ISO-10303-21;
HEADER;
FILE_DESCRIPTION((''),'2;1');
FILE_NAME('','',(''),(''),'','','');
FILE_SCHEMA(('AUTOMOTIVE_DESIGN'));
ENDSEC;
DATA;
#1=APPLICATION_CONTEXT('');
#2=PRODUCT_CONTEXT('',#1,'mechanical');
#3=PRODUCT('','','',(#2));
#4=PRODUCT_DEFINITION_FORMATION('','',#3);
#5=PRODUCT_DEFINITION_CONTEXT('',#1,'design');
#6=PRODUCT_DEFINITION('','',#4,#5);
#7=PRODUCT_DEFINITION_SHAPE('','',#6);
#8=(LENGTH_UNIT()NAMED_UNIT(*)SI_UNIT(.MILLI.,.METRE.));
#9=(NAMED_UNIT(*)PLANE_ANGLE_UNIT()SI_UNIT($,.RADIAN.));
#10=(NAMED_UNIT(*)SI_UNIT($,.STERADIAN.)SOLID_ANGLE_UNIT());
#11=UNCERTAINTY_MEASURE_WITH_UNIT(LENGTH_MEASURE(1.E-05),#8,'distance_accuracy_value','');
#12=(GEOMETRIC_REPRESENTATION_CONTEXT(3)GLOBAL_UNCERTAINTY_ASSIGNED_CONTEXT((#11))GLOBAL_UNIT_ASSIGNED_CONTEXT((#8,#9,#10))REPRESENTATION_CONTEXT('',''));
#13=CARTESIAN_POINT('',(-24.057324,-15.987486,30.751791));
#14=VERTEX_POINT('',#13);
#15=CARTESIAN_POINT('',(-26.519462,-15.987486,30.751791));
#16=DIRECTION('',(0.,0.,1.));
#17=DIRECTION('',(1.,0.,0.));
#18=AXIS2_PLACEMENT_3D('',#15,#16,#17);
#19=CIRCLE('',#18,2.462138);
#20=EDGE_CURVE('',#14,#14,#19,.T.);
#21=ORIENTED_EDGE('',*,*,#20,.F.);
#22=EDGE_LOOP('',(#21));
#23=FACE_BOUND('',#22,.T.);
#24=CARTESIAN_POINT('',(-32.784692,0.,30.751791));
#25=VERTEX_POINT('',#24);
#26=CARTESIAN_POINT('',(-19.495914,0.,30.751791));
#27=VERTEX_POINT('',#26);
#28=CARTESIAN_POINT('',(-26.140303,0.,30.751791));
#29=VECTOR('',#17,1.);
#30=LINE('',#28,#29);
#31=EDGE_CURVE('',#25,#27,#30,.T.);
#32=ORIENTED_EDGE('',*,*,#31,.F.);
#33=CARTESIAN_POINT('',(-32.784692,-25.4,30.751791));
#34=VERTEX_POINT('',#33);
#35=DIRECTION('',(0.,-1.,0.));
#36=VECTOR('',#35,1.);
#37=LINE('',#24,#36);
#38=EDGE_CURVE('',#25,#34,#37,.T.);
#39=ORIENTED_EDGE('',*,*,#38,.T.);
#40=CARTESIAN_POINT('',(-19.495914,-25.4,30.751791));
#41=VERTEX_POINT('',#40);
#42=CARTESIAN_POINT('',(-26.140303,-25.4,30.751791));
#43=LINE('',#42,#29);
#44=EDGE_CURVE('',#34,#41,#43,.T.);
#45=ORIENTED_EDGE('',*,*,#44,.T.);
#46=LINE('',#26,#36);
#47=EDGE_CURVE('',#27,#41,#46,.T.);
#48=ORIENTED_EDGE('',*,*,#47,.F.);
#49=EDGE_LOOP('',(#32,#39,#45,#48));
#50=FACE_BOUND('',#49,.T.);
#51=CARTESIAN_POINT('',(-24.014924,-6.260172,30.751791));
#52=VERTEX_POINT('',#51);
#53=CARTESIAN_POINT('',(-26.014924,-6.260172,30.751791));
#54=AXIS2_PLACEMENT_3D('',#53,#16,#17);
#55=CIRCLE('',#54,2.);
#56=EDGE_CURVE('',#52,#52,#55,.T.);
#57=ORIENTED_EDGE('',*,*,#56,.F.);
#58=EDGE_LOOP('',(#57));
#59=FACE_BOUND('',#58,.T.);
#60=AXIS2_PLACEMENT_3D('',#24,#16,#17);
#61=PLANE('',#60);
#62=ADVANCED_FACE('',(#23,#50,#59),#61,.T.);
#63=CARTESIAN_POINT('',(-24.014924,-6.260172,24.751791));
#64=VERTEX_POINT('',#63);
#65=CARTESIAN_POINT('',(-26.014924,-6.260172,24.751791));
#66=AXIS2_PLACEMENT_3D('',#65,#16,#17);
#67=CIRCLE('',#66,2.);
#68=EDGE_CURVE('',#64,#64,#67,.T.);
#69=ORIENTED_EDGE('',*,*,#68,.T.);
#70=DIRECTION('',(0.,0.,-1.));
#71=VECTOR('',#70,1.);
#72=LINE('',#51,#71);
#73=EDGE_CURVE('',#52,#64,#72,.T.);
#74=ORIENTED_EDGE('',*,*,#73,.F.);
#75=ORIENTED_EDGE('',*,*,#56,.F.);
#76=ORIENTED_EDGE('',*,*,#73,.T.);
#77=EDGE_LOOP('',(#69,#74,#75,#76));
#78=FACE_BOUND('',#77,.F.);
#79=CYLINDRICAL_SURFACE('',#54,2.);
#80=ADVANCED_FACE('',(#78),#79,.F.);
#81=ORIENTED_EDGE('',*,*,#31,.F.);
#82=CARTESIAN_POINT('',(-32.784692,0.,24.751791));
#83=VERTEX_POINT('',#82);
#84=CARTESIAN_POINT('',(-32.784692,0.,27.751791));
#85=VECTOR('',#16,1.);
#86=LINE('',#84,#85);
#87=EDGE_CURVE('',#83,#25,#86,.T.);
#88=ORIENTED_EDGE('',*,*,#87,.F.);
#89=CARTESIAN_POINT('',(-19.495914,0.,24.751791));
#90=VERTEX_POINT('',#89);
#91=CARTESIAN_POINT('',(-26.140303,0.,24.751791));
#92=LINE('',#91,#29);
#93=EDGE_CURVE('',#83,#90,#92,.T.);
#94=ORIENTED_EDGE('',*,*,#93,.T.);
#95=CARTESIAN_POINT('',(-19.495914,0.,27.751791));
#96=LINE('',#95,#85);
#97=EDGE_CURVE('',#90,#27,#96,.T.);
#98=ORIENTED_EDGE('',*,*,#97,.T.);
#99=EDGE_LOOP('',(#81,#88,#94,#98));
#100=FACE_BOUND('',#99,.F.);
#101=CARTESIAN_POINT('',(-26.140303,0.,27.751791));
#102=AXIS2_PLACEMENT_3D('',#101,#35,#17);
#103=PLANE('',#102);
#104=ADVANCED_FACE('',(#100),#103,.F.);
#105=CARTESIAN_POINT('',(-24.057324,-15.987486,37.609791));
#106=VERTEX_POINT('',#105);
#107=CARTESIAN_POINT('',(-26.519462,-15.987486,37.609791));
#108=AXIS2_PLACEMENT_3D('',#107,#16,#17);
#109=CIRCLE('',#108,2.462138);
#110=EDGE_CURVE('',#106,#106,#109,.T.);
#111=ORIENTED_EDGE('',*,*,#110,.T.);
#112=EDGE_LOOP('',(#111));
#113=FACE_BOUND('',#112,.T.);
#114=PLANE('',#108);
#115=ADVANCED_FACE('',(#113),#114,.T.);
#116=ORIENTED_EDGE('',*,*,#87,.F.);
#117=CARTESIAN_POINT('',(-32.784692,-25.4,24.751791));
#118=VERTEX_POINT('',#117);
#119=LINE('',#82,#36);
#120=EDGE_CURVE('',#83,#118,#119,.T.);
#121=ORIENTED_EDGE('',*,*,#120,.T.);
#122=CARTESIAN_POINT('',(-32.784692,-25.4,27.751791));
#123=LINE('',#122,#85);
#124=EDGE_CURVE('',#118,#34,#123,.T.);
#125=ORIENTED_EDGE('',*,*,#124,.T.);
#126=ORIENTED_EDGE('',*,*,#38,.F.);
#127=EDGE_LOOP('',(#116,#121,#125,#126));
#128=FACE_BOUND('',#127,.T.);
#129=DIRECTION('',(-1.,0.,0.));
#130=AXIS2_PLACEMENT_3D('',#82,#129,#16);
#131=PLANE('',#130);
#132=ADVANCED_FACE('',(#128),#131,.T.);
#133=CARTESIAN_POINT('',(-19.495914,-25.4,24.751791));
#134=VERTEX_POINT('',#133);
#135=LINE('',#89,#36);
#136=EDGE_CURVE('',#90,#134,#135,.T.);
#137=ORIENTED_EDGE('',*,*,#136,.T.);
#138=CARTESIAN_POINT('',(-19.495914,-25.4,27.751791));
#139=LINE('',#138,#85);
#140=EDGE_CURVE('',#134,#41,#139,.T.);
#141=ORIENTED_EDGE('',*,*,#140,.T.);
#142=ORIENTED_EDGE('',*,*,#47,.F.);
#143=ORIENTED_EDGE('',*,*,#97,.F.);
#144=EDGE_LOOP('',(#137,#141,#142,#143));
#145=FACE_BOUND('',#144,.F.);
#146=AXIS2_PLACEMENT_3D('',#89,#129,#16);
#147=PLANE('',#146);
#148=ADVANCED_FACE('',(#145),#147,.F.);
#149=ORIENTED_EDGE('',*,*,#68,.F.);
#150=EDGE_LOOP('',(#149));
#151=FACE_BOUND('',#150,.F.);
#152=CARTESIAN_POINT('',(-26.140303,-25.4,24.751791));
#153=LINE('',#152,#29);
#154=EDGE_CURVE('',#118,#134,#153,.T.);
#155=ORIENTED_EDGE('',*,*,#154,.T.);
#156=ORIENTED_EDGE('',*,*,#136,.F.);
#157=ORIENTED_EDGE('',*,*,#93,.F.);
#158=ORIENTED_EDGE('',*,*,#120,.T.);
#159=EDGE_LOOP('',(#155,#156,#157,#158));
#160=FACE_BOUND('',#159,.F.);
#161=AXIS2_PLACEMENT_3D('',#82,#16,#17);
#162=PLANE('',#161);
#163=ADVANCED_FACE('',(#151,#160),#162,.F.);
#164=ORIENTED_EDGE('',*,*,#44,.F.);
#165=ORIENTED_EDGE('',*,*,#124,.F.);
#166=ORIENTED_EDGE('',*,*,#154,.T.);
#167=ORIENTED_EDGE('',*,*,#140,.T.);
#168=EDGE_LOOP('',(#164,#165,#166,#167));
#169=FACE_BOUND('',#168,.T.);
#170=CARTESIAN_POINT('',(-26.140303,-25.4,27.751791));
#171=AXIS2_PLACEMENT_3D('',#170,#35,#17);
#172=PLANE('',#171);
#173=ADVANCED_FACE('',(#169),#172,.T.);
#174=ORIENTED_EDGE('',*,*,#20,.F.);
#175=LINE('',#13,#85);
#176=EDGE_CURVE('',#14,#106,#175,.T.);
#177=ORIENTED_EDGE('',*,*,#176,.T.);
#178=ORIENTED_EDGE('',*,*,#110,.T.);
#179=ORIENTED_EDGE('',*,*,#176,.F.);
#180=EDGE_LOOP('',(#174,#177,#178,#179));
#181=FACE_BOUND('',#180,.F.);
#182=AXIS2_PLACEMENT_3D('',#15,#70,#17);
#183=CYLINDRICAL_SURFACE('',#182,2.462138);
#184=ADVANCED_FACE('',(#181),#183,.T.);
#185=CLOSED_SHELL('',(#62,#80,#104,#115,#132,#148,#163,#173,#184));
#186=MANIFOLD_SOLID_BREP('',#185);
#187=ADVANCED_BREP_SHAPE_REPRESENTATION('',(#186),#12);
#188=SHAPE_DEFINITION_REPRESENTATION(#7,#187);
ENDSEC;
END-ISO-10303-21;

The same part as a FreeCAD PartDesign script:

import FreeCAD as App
import Part
import Sketcher
from FreeCAD import Vector
Q = App.Units.Quantity


def add_polygon(sketch, points):
    """Adds a closed chain of lines whose ends are joined by coincident constraints."""
    first, n = sketch.GeometryCount, len(points)
    for a, b in zip(points, points[1:] + points[:1]):
        sketch.addGeometry(Part.LineSegment(App.Vector(*a, 0), App.Vector(*b, 0)), False)
    for i in range(n):
        sketch.addConstraint(Sketcher.Constraint("Coincident", first + i, 2, first + (i + 1) % n, 1))

doc = App.newDocument("Part")
body = doc.addObject("PartDesign::Body", "Body")

# Sketch on XZ plane
sketch1 = body.newObject("Sketcher::SketchObject", "Sketch")
sketch1.AttachmentSupport = (doc.getObject("XZ_Plane"), [""])
sketch1.MapMode = "FlatFace"
add_polygon(sketch1, [(-33, 31), (-33, 25), (-19, 25), (-19, 31)])  # lines 0-3
sketch1.addConstraint([
    Sketcher.Constraint("Vertical", 0),
    Sketcher.Constraint("Horizontal", 1),
    Sketcher.Constraint("Vertical", 2),
    Sketcher.Constraint("Horizontal", 3),
    Sketcher.Constraint("DistanceY", 0, 2, 0, 1, Q("6 mm")),
    Sketcher.Constraint("DistanceX", 1, 1, 1, 2, Q("13.288778 mm")),
    Sketcher.Constraint("DistanceY", -1, 1, 0, 2, Q("24.751791 mm")),
    Sketcher.Constraint("DistanceX", 0, 2, -1, 1, Q("32.784692 mm")),
])
pad1 = body.newObject("PartDesign::Pad", "Pad")
pad1.Profile = sketch1
pad1.Length = 25.4

# Sketch on XY plane
sketch2 = body.newObject("Sketcher::SketchObject", "Sketch001")
sketch2.AttachmentSupport = (doc.getObject("XY_Plane"), [""])
sketch2.MapMode = "FlatFace"
sketch2.AttachmentOffset = App.Placement(Vector(0, 0, 30.751791), App.Rotation())
sketch2.addGeometry(Part.Circle(Vector(-26, -6.3, 0), Vector(0, 0, 1), 2), False)
sketch2.addConstraint([
    Sketcher.Constraint("Diameter", 0, Q("4 mm")),
    Sketcher.Constraint("DistanceX", 0, 3, -1, 1, Q("26.014924 mm")),
    Sketcher.Constraint("DistanceY", 0, 3, -1, 1, Q("6.260172 mm")),
])
pocket1 = body.newObject("PartDesign::Pocket", "Pocket")
pocket1.Profile = sketch2
pocket1.Length = 25.4

# Sketch on XY plane
sketch3 = body.newObject("Sketcher::SketchObject", "Sketch002")
sketch3.AttachmentSupport = (doc.getObject("XY_Plane"), [""])
sketch3.MapMode = "FlatFace"
sketch3.AttachmentOffset = App.Placement(Vector(0, 0, 30.751791), App.Rotation())
sketch3.addGeometry(Part.Circle(Vector(-26.5, -16, 0), Vector(0, 0, 1), 2.5), False)
sketch3.addConstraint([
    Sketcher.Constraint("Diameter", 0, Q("4.924276 mm")),
    Sketcher.Constraint("DistanceX", 0, 3, -1, 1, Q("26.519462 mm")),
    Sketcher.Constraint("DistanceY", 0, 3, -1, 1, Q("15.987486 mm")),
])
pad2 = body.newObject("PartDesign::Pad", "Pad001")
pad2.Profile = sketch3
pad2.Length = 6.858

doc.recompute()
